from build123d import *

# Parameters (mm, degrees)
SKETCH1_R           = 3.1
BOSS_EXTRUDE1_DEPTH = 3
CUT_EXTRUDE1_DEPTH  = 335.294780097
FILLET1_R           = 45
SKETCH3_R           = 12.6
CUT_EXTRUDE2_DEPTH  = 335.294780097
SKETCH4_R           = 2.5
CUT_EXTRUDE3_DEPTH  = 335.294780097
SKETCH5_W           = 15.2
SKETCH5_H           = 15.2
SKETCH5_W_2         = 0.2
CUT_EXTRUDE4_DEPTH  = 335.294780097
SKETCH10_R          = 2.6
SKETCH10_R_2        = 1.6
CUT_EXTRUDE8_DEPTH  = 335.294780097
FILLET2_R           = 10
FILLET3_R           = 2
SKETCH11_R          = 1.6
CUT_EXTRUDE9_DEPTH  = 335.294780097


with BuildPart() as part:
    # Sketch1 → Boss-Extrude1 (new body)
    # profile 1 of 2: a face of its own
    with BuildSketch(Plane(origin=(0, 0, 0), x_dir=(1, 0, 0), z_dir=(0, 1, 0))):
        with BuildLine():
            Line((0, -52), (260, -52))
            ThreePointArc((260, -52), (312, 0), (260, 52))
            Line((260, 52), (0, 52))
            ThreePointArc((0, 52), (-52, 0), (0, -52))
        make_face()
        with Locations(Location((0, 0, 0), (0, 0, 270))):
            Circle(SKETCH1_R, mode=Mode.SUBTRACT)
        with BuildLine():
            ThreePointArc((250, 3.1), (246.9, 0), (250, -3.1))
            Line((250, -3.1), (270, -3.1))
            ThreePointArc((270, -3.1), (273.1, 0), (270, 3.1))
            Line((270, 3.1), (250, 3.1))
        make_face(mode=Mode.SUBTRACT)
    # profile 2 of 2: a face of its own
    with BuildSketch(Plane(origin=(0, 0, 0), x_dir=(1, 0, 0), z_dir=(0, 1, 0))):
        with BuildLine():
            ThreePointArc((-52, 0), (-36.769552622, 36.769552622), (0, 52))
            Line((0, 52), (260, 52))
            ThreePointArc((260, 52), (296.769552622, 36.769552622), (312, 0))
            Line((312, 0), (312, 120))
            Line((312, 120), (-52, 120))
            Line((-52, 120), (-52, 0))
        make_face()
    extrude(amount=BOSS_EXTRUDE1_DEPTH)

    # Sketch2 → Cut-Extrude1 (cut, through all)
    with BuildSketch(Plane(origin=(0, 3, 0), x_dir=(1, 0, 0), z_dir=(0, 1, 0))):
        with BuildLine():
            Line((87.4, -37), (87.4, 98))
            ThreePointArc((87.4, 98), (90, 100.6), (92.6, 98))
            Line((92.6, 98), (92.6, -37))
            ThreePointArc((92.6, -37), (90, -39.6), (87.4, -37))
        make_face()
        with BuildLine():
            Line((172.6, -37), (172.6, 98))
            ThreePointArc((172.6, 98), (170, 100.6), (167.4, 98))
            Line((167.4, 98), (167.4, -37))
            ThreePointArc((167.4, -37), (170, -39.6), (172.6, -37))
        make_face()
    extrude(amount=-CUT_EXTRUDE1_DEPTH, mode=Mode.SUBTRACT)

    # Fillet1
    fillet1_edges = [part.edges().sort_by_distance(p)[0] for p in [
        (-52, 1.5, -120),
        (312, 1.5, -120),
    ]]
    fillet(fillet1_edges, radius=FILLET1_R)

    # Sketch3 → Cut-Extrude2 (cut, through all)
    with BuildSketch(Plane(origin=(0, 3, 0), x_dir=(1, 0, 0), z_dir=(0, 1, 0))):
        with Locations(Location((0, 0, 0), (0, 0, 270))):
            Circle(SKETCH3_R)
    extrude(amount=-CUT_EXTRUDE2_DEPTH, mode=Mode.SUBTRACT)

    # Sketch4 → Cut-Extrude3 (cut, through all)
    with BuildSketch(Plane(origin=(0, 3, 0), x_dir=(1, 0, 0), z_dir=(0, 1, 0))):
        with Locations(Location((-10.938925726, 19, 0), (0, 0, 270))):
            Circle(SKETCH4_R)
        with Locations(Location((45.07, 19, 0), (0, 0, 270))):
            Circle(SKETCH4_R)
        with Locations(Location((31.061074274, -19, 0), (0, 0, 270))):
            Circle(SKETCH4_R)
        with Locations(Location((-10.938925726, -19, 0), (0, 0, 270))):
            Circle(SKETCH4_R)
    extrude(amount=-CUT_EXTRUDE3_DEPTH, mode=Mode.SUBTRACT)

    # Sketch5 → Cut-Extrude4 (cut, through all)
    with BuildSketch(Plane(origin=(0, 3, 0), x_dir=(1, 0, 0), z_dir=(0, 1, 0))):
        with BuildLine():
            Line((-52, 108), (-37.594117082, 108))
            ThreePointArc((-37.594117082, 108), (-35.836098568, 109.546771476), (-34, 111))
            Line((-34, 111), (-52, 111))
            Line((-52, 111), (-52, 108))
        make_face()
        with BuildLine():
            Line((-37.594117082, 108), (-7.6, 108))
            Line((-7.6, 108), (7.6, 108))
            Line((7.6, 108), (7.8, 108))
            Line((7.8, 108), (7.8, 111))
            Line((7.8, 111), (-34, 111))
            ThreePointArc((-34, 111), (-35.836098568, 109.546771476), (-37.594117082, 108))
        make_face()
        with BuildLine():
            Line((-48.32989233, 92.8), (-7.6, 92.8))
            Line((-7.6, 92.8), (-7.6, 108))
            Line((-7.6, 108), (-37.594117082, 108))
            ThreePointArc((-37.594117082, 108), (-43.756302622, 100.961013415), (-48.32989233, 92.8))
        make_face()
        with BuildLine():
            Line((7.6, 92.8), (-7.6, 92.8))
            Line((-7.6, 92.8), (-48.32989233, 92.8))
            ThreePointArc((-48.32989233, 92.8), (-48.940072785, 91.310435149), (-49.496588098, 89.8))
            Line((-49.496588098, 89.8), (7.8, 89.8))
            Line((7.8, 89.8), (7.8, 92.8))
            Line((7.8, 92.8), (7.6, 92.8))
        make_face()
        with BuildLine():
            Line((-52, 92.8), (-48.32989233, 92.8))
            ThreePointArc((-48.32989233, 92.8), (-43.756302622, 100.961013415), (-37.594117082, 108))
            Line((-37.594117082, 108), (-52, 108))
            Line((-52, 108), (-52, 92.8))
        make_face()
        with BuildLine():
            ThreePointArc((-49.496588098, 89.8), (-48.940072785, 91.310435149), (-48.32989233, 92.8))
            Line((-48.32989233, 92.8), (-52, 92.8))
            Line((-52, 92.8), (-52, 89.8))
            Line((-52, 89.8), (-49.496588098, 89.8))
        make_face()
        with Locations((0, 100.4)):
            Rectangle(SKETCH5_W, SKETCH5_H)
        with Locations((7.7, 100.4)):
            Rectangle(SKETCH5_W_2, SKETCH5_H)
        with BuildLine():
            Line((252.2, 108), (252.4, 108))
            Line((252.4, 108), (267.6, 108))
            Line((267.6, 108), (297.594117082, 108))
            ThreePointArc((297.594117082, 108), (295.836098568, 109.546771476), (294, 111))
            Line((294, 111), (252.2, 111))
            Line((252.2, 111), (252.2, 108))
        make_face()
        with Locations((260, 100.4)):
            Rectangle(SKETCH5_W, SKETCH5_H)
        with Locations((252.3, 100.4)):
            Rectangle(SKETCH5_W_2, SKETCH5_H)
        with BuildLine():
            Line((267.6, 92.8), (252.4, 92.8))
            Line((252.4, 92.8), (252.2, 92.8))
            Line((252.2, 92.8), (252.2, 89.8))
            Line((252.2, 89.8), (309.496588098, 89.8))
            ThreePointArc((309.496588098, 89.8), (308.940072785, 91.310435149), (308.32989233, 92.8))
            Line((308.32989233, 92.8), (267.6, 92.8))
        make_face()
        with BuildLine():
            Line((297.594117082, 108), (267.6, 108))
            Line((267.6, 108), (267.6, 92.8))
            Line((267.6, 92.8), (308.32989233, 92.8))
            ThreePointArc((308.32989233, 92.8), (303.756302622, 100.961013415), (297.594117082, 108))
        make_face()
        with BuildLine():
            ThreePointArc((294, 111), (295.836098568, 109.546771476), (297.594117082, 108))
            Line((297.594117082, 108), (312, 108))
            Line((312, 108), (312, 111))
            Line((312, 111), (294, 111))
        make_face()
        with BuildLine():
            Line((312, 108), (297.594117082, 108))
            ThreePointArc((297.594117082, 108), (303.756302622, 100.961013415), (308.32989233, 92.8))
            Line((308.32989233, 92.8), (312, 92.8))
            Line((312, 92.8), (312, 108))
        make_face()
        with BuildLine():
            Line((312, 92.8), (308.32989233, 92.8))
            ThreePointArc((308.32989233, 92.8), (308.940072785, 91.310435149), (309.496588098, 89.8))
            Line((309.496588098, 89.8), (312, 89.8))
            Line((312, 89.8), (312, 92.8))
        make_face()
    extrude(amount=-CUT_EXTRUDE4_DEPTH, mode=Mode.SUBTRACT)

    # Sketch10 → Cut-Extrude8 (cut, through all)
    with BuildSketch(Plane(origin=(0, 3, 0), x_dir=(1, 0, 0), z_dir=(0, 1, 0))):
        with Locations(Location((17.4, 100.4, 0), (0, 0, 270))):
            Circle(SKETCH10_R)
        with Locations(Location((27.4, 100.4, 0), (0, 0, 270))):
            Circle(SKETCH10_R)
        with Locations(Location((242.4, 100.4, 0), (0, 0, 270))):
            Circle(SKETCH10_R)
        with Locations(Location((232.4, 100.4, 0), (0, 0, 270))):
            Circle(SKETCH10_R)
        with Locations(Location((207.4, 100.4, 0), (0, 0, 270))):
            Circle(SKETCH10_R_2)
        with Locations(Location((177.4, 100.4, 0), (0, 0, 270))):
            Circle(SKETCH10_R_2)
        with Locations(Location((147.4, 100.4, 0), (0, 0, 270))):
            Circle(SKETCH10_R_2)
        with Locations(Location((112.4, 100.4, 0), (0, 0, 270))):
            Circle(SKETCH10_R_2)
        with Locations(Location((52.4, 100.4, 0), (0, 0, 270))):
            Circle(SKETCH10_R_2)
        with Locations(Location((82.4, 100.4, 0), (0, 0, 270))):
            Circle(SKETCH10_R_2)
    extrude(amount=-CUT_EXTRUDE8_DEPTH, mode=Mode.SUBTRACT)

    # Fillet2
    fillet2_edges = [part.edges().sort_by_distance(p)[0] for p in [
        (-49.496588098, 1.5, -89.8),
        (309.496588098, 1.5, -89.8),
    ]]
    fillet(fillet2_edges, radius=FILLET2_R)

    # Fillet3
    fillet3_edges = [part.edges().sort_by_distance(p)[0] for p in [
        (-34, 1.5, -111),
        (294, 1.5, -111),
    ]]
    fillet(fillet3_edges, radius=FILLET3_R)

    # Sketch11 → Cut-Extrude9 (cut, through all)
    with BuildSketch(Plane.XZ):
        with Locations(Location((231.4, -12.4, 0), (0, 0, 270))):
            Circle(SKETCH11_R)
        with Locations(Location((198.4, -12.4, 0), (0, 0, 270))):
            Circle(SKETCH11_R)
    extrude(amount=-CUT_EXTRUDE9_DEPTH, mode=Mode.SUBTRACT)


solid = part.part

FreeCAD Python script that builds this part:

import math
import FreeCAD as App
import Part
import Sketcher
from FreeCAD import Vector
Q = App.Units.Quantity


def edges_at(feature, points):
    """Names of the edges that pass closest to the given points."""
    edges = feature.Shape.Edges
    near = lambda p: min(range(len(edges)), key=lambda i: edges[i].distToShape(Part.Vertex(*p))[0])
    return sorted({f"Edge{near(p) + 1}" for p in points})

doc = App.newDocument("Part")
body = doc.addObject("PartDesign::Body", "Body")

sketch1 = body.newObject("Sketcher::SketchObject", "Sketch")
sketch1.AttachmentSupport = (doc.getObject("XZ_Plane"), [""])
sketch1.MapMode = "FlatFace"
sketch1.addGeometry(Part.LineSegment(Vector(0, 52, 0), Vector(260, 52, 0)), False)
sketch1.addGeometry(Part.ArcOfCircle(Part.Circle(Vector(260, 0, 0), Vector(0, 0, 1), 52), math.radians(0), math.radians(90)), False)
sketch1.addGeometry(Part.LineSegment(Vector(312, 0, 0), Vector(312, -120, 0)), False)
sketch1.addGeometry(Part.LineSegment(Vector(312, -120, 0), Vector(-52, -120, 0)), False)
sketch1.addGeometry(Part.LineSegment(Vector(-52, -120, 0), Vector(-52, 0, 0)), False)
sketch1.addGeometry(Part.ArcOfCircle(Part.Circle(Vector(0, 0, 0), Vector(0, 0, 1), 52), math.radians(90), math.radians(180)), False)
sketch1.addGeometry(Part.Circle(Vector(0, 0, 0), Vector(0, 0, 1), 3.1), False)
sketch1.addGeometry(Part.ArcOfCircle(Part.Circle(Vector(250, 0, 0), Vector(0, 0, 1), 3.1), math.radians(90), math.radians(270)), False)
sketch1.addGeometry(Part.LineSegment(Vector(250, -3.1, 0), Vector(270, -3.1, 0)), False)
sketch1.addGeometry(Part.ArcOfCircle(Part.Circle(Vector(270, 0, 0), Vector(0, 0, 1), 3.1), math.radians(-90), math.radians(90)), False)
sketch1.addGeometry(Part.LineSegment(Vector(270, 3.1, 0), Vector(250, 3.1, 0)), False)
sketch1.addConstraint(Sketcher.Constraint("Tangent", 0, 2, 1, 2))
sketch1.addConstraint(Sketcher.Constraint("Tangent", 1, 1, 2, 1))
sketch1.addConstraint(Sketcher.Constraint("Coincident", 2, 2, 3, 1))
sketch1.addConstraint(Sketcher.Constraint("Coincident", 3, 2, 4, 1))
sketch1.addConstraint(Sketcher.Constraint("Tangent", 4, 2, 5, 2))
sketch1.addConstraint(Sketcher.Constraint("Tangent", 5, 1, 0, 1))
sketch1.addConstraint(Sketcher.Constraint("Tangent", 7, 2, 8, 1))
sketch1.addConstraint(Sketcher.Constraint("Tangent", 8, 2, 9, 1))
sketch1.addConstraint(Sketcher.Constraint("Tangent", 9, 2, 10, 1))
sketch1.addConstraint(Sketcher.Constraint("Tangent", 10, 2, 7, 1))
sketch1.addConstraint(Sketcher.Constraint("Horizontal", 0))
sketch1.addConstraint(Sketcher.Constraint("Vertical", 2))
sketch1.addConstraint(Sketcher.Constraint("Horizontal", 3))
sketch1.addConstraint(Sketcher.Constraint("Vertical", 4))
sketch1.addConstraint(Sketcher.Constraint("Horizontal", 8))
sketch1.addConstraint(Sketcher.Constraint("Horizontal", 10))
sketch1.addConstraint(Sketcher.Constraint("Coincident", 5, 3, -1, 1))
sketch1.addConstraint(Sketcher.Constraint("Coincident", 6, 3, -1, 1))
sketch1.addConstraint(Sketcher.Constraint("Equal", 1, 5))
sketch1.addConstraint(Sketcher.Constraint("Equal", 6, 7))
sketch1.addConstraint(Sketcher.Constraint("PointOnObject", 7, 3, -1))
sketch1.addConstraint(Sketcher.Constraint("Radius", 1, Q("52 mm")))
sketch1.addConstraint(Sketcher.Constraint("Diameter", 6, Q("6.2 mm")))
sketch1.addConstraint(Sketcher.Constraint("DistanceX", 0, 1, 0, 2, Q("260 mm")))
sketch1.addConstraint(Sketcher.Constraint("DistanceX", 8, 1, 8, 2, Q("20 mm")))
sketch1.addConstraint(Sketcher.Constraint("DistanceY", 2, 2, 2, 1, Q("120 mm")))
sketch1.addConstraint(Sketcher.Constraint("DistanceX", -1, 1, 7, 3, Q("250 mm")))
pad1 = body.newObject("PartDesign::Pad", "Pad")
pad1.Profile = sketch1
pad1.Length = 3
pad1.Reversed = True

sketch2 = body.newObject("Sketcher::SketchObject", "Sketch001")
sketch2.AttachmentSupport = (doc.getObject("XZ_Plane"), [""])
sketch2.MapMode = "FlatFace"
sketch2.AttachmentOffset = App.Placement(Vector(0, 0, -3), App.Rotation())
sketch2.addGeometry(Part.LineSegment(Vector(87.4, -98, 0), Vector(87.4, 37, 0)), False)
sketch2.addGeometry(Part.ArcOfCircle(Part.Circle(Vector(90, 37, 0), Vector(0, 0, 1), 2.6), math.radians(0), math.radians(180)), False)
sketch2.addGeometry(Part.LineSegment(Vector(92.6, 37, 0), Vector(92.6, -98, 0)), False)
sketch2.addGeometry(Part.ArcOfCircle(Part.Circle(Vector(90, -98, 0), Vector(0, 0, 1), 2.6), math.radians(180), math.radians(360)), False)
sketch2.addGeometry(Part.LineSegment(Vector(172.6, 37, 0), Vector(172.6, -98, 0)), False)
sketch2.addGeometry(Part.ArcOfCircle(Part.Circle(Vector(170, -98, 0), Vector(0, 0, 1), 2.6), math.radians(180), math.radians(360)), False)
sketch2.addGeometry(Part.LineSegment(Vector(167.4, -98, 0), Vector(167.4, 37, 0)), False)
sketch2.addGeometry(Part.ArcOfCircle(Part.Circle(Vector(170, 37, 0), Vector(0, 0, 1), 2.6), math.radians(0), math.radians(180)), False)
sketch2.addConstraint(Sketcher.Constraint("Tangent", 0, 2, 1, 2))
sketch2.addConstraint(Sketcher.Constraint("Tangent", 1, 1, 2, 1))
sketch2.addConstraint(Sketcher.Constraint("Tangent", 2, 2, 3, 2))
sketch2.addConstraint(Sketcher.Constraint("Tangent", 3, 1, 0, 1))
sketch2.addConstraint(Sketcher.Constraint("Tangent", 4, 2, 5, 2))
sketch2.addConstraint(Sketcher.Constraint("Tangent", 5, 1, 6, 1))
sketch2.addConstraint(Sketcher.Constraint("Tangent", 6, 2, 7, 2))
sketch2.addConstraint(Sketcher.Constraint("Tangent", 7, 1, 4, 1))
sketch2.addConstraint(Sketcher.Constraint("Vertical", 0))
sketch2.addConstraint(Sketcher.Constraint("Vertical", 2))
sketch2.addConstraint(Sketcher.Constraint("Vertical", 4))
sketch2.addConstraint(Sketcher.Constraint("Vertical", 6))
sketch2.addConstraint(Sketcher.Constraint("Equal", 3, 5))
sketch2.addConstraint(Sketcher.Constraint("Horizontal", 3, 3, 5, 3))
sketch2.addConstraint(Sketcher.Constraint("Horizontal", 1, 3, 7, 3))
sketch2.addConstraint(Sketcher.Constraint("Radius", 1, Q("2.6 mm")))
sketch2.addConstraint(Sketcher.Constraint("DistanceY", 0, 1, 0, 2, Q("135 mm")))
sketch2.addConstraint(Sketcher.Constraint("DistanceX", -1, 1, 1, 3, Q("90 mm")))
sketch2.addConstraint(Sketcher.Constraint("DistanceY", -1, 1, 1, 3, Q("37 mm")))
sketch2.addConstraint(Sketcher.Constraint("DistanceX", -1, 1, 5, 3, Q("170 mm")))
pocket1 = body.newObject("PartDesign::Pocket", "Pocket")
pocket1.Profile = sketch2
pocket1.Type = "ThroughAll"
pocket1.Reversed = True
doc.recompute()

fillet = body.newObject("PartDesign::Fillet", "Fillet")
fillet.Base = (pocket1, edges_at(pocket1, [(-52, 1.5, -120), (312, 1.5, -120)]))
fillet.Radius = 45

sketch3 = body.newObject("Sketcher::SketchObject", "Sketch002")
sketch3.AttachmentSupport = (doc.getObject("XZ_Plane"), [""])
sketch3.MapMode = "FlatFace"
sketch3.AttachmentOffset = App.Placement(Vector(0, 0, -3), App.Rotation())
sketch3.addGeometry(Part.Circle(Vector(0, 0, 0), Vector(0, 0, 1), 13), False)
sketch3.addConstraint(Sketcher.Constraint("Coincident", 0, 3, -1, 1))
sketch3.addConstraint(Sketcher.Constraint("Diameter", 0, Q("25.2 mm")))
pocket2 = body.newObject("PartDesign::Pocket", "Pocket001")
pocket2.Profile = sketch3
pocket2.Type = "ThroughAll"
pocket2.Reversed = True

sketch4 = body.newObject("Sketcher::SketchObject", "Sketch003")
sketch4.AttachmentSupport = (doc.getObject("XZ_Plane"), [""])
sketch4.MapMode = "FlatFace"
sketch4.AttachmentOffset = App.Placement(Vector(0, 0, -3), App.Rotation())
sketch4.addGeometry(Part.Circle(Vector(-10.9, -19, 0), Vector(0, 0, 1), 2.5), False)
sketch4.addGeometry(Part.Circle(Vector(45.1, -19, 0), Vector(0, 0, 1), 2.5), False)
sketch4.addGeometry(Part.Circle(Vector(31.1, 19, 0), Vector(0, 0, 1), 2.5), False)
sketch4.addGeometry(Part.Circle(Vector(-10.9, 19, 0), Vector(0, 0, 1), 2.5), False)
sketch4.addConstraint(Sketcher.Constraint("Equal", 0, 1))
sketch4.addConstraint(Sketcher.Constraint("Equal", 1, 2))
sketch4.addConstraint(Sketcher.Constraint("Equal", 2, 3))
sketch4.addConstraint(Sketcher.Constraint("Symmetric", 0, 3, 3, 3, -1))
sketch4.addConstraint(Sketcher.Constraint("Horizontal", 0, 3, 1, 3))
sketch4.addConstraint(Sketcher.Constraint("Horizontal", 2, 3, 3, 3))
sketch4.addConstraint(Sketcher.Constraint("Diameter", 0, Q("5 mm")))
sketch4.addConstraint(Sketcher.Constraint("DistanceY", 0, 3, -1, 1, Q("19 mm")))
sketch4.addConstraint(Sketcher.Constraint("DistanceX", 0, 3, 2, 3, Q("42 mm")))
sketch4.addConstraint(Sketcher.Constraint("DistanceX", -1, 1, 1, 3, Q("45.07 mm")))
sketch4.addConstraint(Sketcher.Constraint("DistanceX", 0, 3, -1, 1, Q("10.938926 mm")))
pocket3 = body.newObject("PartDesign::Pocket", "Pocket002")
pocket3.Profile = sketch4
pocket3.Type = "ThroughAll"
pocket3.Reversed = True

sketch5 = body.newObject("Sketcher::SketchObject", "Sketch004")
sketch5.AttachmentSupport = (doc.getObject("XZ_Plane"), [""])
sketch5.MapMode = "FlatFace"
sketch5.AttachmentOffset = App.Placement(Vector(0, 0, -3), App.Rotation())
sketch5.addGeometry(Part.LineSegment(Vector(8, -90, 0), Vector(8, -111, 0)), False)
sketch5.addGeometry(Part.LineSegment(Vector(8, -111, 0), Vector(-52, -111, 0)), False)
sketch5.addGeometry(Part.LineSegment(Vector(-52, -111, 0), Vector(-52, -90, 0)), False)
sketch5.addGeometry(Part.LineSegment(Vector(-52, -90, 0), Vector(8, -90, 0)), False)
sketch5.addGeometry(Part.LineSegment(Vector(252, -111, 0), Vector(252, -90, 0)), False)
sketch5.addGeometry(Part.LineSegment(Vector(252, -90, 0), Vector(312, -90, 0)), False)
sketch5.addGeometry(Part.LineSegment(Vector(312, -90, 0), Vector(312, -111, 0)), False)
sketch5.addGeometry(Part.LineSegment(Vector(312, -111, 0), Vector(252, -111, 0)), False)
sketch5.addConstraint(Sketcher.Constraint("Coincident", 0, 2, 1, 1))
sketch5.addConstraint(Sketcher.Constraint("Coincident", 1, 2, 2, 1))
sketch5.addConstraint(Sketcher.Constraint("Coincident", 2, 2, 3, 1))
sketch5.addConstraint(Sketcher.Constraint("Coincident", 3, 2, 0, 1))
sketch5.addConstraint(Sketcher.Constraint("Coincident", 4, 2, 5, 1))
sketch5.addConstraint(Sketcher.Constraint("Coincident", 5, 2, 6, 1))
sketch5.addConstraint(Sketcher.Constraint("Coincident", 6, 2, 7, 1))
sketch5.addConstraint(Sketcher.Constraint("Coincident", 7, 2, 4, 1))
sketch5.addConstraint(Sketcher.Constraint("Vertical", 0))
sketch5.addConstraint(Sketcher.Constraint("Horizontal", 1))
sketch5.addConstraint(Sketcher.Constraint("Vertical", 2))
sketch5.addConstraint(Sketcher.Constraint("Horizontal", 3))
sketch5.addConstraint(Sketcher.Constraint("Vertical", 4))
sketch5.addConstraint(Sketcher.Constraint("Horizontal", 5))
sketch5.addConstraint(Sketcher.Constraint("Vertical", 6))
sketch5.addConstraint(Sketcher.Constraint("Horizontal", 7))
sketch5.addConstraint(Sketcher.Constraint("Horizontal", 3, 2, 4, 2))
sketch5.addConstraint(Sketcher.Constraint("Horizontal", 1, 2, 6, 2))
sketch5.addConstraint(Sketcher.Constraint("Equal", 3, 5))
sketch5.addConstraint(Sketcher.Constraint("DistanceX", 1, 2, 1, 1, Q("59.8 mm")))
sketch5.addConstraint(Sketcher.Constraint("DistanceY", 0, 2, 0, 1, Q("21.2 mm")))
sketch5.addConstraint(Sketcher.Constraint("DistanceY", 0, 2, -1, 1, Q("111 mm")))
sketch5.addConstraint(Sketcher.Constraint("DistanceX", 1, 2, -1, 1, Q("52 mm")))
sketch5.addConstraint(Sketcher.Constraint("DistanceX", -1, 1, 5, 2, Q("312 mm")))
pocket4 = body.newObject("PartDesign::Pocket", "Pocket003")
pocket4.Profile = sketch5
pocket4.Type = "ThroughAll"
pocket4.Reversed = True

sketch6 = body.newObject("Sketcher::SketchObject", "Sketch005")
sketch6.AttachmentSupport = (doc.getObject("XZ_Plane"), [""])
sketch6.MapMode = "FlatFace"
sketch6.AttachmentOffset = App.Placement(Vector(0, 0, -3), App.Rotation())
sketch6.addGeometry(Part.Circle(Vector(17.4, -100.4, 0), Vector(0, 0, 1), 2.6), False)
sketch6.addGeometry(Part.Circle(Vector(27.4, -100.4, 0), Vector(0, 0, 1), 2.6), False)
sketch6.addGeometry(Part.Circle(Vector(242.4, -100.4, 0), Vector(0, 0, 1), 2.6), False)
sketch6.addGeometry(Part.Circle(Vector(232.4, -100.4, 0), Vector(0, 0, 1), 2.6), False)
sketch6.addGeometry(Part.Circle(Vector(207.4, -100.4, 0), Vector(0, 0, 1), 1.6), False)
sketch6.addGeometry(Part.Circle(Vector(177.4, -100.4, 0), Vector(0, 0, 1), 1.6), False)
sketch6.addGeometry(Part.Circle(Vector(147.4, -100.4, 0), Vector(0, 0, 1), 1.6), False)
sketch6.addGeometry(Part.Circle(Vector(112.4, -100.4, 0), Vector(0, 0, 1), 1.6), False)
sketch6.addGeometry(Part.Circle(Vector(52.4, -100.4, 0), Vector(0, 0, 1), 1.6), False)
sketch6.addGeometry(Part.Circle(Vector(82.4, -100.4, 0), Vector(0, 0, 1), 1.6), False)
sketch6.addConstraint(Sketcher.Constraint("Equal", 0, 1))
sketch6.addConstraint(Sketcher.Constraint("Equal", 1, 2))
sketch6.addConstraint(Sketcher.Constraint("Equal", 2, 3))
sketch6.addConstraint(Sketcher.Constraint("Equal", 4, 5))
sketch6.addConstraint(Sketcher.Constraint("Equal", 5, 6))
sketch6.addConstraint(Sketcher.Constraint("Equal", 6, 7))
sketch6.addConstraint(Sketcher.Constraint("Equal", 7, 8))
sketch6.addConstraint(Sketcher.Constraint("Equal", 8, 9))
sketch6.addConstraint(Sketcher.Constraint("Horizontal", 0, 3, 1, 3))
sketch6.addConstraint(Sketcher.Constraint("Horizontal", 1, 3, 2, 3))
sketch6.addConstraint(Sketcher.Constraint("Horizontal", 2, 3, 3, 3))
sketch6.addConstraint(Sketcher.Constraint("Horizontal", 3, 3, 4, 3))
sketch6.addConstraint(Sketcher.Constraint("Horizontal", 4, 3, 5, 3))
sketch6.addConstraint(Sketcher.Constraint("Horizontal", 5, 3, 6, 3))
sketch6.addConstraint(Sketcher.Constraint("Horizontal", 6, 3, 7, 3))
sketch6.addConstraint(Sketcher.Constraint("Horizontal", 7, 3, 8, 3))
sketch6.addConstraint(Sketcher.Constraint("Horizontal", 8, 3, 9, 3))
sketch6.addConstraint(Sketcher.Constraint("Diameter", 0, Q("5.2 mm")))
sketch6.addConstraint(Sketcher.Constraint("Diameter", 4, Q("3.2 mm")))
sketch6.addConstraint(Sketcher.Constraint("DistanceX", 0, 3, 1, 3, Q("10 mm")))
sketch6.addConstraint(Sketcher.Constraint("DistanceX", 1, 3, 2, 3, Q("215 mm")))
sketch6.addConstraint(Sketcher.Constraint("DistanceX", 3, 3, 2, 3, Q("10 mm")))
sketch6.addConstraint(Sketcher.Constraint("DistanceX", 4, 3, 3, 3, Q("25 mm")))
sketch6.addConstraint(Sketcher.Constraint("DistanceX", 5, 3, 4, 3, Q("30 mm")))
sketch6.addConstraint(Sketcher.Constraint("DistanceX", 6, 3, 5, 3, Q("30 mm")))
sketch6.addConstraint(Sketcher.Constraint("DistanceX", 7, 3, 6, 3, Q("35 mm")))
sketch6.addConstraint(Sketcher.Constraint("DistanceX", 1, 3, 8, 3, Q("25 mm")))
sketch6.addConstraint(Sketcher.Constraint("DistanceX", 9, 3, 7, 3, Q("30 mm")))
sketch6.addConstraint(Sketcher.Constraint("DistanceX", -1, 1, 0, 3, Q("17.4 mm")))
sketch6.addConstraint(Sketcher.Constraint("DistanceY", 0, 3, -1, 1, Q("100.4 mm")))
pocket5 = body.newObject("PartDesign::Pocket", "Pocket004")
pocket5.Profile = sketch6
pocket5.Type = "ThroughAll"
pocket5.Reversed = True
doc.recompute()

fillet2 = body.newObject("PartDesign::Fillet", "Fillet001")
fillet2.Base = (pocket5, edges_at(pocket5, [(-49.497, 1.5, -89.8), (309.497, 1.5, -89.8)]))
fillet2.Radius = 10
doc.recompute()

fillet3 = body.newObject("PartDesign::Fillet", "Fillet002")
fillet3.Base = (fillet2, edges_at(fillet2, [(-34, 1.5, -111), (294, 1.5, -111)]))
fillet3.Radius = 2

sketch7 = body.newObject("Sketcher::SketchObject", "Sketch006")
sketch7.AttachmentSupport = (doc.getObject("XZ_Plane"), [""])
sketch7.MapMode = "FlatFace"
sketch7.addGeometry(Part.Circle(Vector(231.4, -12.4, 0), Vector(0, 0, 1), 1.6), False)
sketch7.addGeometry(Part.Circle(Vector(198.4, -12.4, 0), Vector(0, 0, 1), 1.6), False)
sketch7.addConstraint(Sketcher.Constraint("Equal", 0, 1))
sketch7.addConstraint(Sketcher.Constraint("Horizontal", 0, 3, 1, 3))
sketch7.addConstraint(Sketcher.Constraint("Diameter", 0, Q("3.2 mm")))
sketch7.addConstraint(Sketcher.Constraint("DistanceX", 1, 3, 0, 3, Q("33 mm")))
sketch7.addConstraint(Sketcher.Constraint("DistanceX", -1, 1, 0, 3, Q("231.4 mm")))
sketch7.addConstraint(Sketcher.Constraint("DistanceY", 0, 3, -1, 1, Q("12.4 mm")))
pocket6 = body.newObject("PartDesign::Pocket", "Pocket005")
pocket6.Profile = sketch7
pocket6.Type = "ThroughAll"

doc.recompute()
